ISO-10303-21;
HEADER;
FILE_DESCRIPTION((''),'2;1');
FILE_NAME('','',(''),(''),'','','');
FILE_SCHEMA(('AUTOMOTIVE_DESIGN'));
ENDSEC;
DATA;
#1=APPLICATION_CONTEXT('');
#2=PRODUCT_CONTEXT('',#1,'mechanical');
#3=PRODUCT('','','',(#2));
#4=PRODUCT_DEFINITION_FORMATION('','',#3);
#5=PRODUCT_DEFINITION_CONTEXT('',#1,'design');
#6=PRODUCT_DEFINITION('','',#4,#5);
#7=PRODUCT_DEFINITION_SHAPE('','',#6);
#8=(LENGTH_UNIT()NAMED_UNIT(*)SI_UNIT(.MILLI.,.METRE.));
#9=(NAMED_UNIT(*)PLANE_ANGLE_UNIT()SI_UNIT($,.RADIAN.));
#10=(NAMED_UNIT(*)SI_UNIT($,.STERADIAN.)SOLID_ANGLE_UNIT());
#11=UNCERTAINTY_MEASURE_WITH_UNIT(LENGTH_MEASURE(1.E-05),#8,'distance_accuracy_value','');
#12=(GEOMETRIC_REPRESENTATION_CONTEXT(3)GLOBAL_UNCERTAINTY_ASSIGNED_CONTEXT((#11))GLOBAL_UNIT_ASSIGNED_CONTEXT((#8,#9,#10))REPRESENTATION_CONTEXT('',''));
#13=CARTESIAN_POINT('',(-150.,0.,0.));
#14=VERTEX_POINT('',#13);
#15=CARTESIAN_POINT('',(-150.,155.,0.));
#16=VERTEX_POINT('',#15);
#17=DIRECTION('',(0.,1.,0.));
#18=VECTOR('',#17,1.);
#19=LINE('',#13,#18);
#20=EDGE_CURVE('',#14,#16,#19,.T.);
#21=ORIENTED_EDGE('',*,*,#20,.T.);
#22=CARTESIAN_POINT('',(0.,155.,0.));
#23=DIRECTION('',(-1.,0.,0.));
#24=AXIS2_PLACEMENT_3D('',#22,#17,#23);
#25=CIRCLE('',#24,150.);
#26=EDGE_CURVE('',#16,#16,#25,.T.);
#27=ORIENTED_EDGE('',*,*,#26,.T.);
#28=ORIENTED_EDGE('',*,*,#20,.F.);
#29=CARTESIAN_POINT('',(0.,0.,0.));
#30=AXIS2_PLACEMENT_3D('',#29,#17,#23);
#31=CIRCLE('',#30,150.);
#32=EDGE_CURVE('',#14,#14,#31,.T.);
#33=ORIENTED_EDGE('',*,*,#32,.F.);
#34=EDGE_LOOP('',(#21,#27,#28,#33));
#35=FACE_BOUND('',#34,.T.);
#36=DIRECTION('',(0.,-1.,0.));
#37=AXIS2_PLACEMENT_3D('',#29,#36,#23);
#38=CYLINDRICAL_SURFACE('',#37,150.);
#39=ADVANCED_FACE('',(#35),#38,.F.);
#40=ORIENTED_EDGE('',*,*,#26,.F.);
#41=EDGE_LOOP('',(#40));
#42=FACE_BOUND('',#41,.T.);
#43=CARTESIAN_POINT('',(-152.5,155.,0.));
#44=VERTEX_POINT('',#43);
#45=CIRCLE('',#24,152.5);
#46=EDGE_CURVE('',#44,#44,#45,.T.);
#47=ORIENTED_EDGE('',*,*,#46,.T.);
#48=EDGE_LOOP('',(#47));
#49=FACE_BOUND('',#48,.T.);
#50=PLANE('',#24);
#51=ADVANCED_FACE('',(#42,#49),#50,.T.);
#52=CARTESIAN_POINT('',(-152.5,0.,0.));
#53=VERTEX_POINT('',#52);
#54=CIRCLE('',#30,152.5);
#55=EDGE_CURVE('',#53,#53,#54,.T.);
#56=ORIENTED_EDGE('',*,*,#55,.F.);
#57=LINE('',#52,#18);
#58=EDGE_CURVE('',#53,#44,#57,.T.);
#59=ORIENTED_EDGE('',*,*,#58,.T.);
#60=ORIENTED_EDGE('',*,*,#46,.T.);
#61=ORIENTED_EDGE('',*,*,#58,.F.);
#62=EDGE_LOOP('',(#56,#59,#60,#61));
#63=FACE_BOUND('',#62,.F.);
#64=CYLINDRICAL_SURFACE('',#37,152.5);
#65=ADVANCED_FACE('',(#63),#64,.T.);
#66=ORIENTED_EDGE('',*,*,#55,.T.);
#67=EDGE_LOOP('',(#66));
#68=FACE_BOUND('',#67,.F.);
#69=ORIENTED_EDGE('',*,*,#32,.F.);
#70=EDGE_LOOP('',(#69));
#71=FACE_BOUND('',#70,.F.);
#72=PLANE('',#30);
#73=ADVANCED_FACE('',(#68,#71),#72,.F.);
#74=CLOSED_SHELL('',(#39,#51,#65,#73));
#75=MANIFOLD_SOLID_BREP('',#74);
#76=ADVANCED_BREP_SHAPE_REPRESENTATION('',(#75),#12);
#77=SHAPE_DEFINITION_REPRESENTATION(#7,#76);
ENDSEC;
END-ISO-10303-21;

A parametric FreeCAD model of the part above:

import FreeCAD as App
import Part
import Sketcher

doc = App.newDocument("Part")
body = doc.addObject("PartDesign::Body", "Body")

sketch1 = body.newObject("Sketcher::SketchObject", "Sketch")
sketch1.AttachmentSupport = (doc.getObject("XZ_Plane"), [""])
sketch1.MapMode = "FlatFace"
sketch1.addGeometry(Part.Circle(App.Vector(0, 0, 0), App.Vector(0, 0, 1), 152.5), False)
sketch1.addGeometry(Part.Circle(App.Vector(0, 0, 0), App.Vector(0, 0, 1), 150), False)
sketch1.addConstraint(Sketcher.Constraint("Coincident", 0, 3, -1, 1))
sketch1.addConstraint(Sketcher.Constraint("Coincident", 1, 3, -1, 1))
sketch1.addConstraint(Sketcher.Constraint("Diameter", 0, 305.0))
sketch1.addConstraint(Sketcher.Constraint("Diameter", 1, 300.0))
pad1 = body.newObject("PartDesign::Pad", "Pad")
pad1.Profile = sketch1
pad1.Length = 155
pad1.Reversed = True

doc.recompute()
